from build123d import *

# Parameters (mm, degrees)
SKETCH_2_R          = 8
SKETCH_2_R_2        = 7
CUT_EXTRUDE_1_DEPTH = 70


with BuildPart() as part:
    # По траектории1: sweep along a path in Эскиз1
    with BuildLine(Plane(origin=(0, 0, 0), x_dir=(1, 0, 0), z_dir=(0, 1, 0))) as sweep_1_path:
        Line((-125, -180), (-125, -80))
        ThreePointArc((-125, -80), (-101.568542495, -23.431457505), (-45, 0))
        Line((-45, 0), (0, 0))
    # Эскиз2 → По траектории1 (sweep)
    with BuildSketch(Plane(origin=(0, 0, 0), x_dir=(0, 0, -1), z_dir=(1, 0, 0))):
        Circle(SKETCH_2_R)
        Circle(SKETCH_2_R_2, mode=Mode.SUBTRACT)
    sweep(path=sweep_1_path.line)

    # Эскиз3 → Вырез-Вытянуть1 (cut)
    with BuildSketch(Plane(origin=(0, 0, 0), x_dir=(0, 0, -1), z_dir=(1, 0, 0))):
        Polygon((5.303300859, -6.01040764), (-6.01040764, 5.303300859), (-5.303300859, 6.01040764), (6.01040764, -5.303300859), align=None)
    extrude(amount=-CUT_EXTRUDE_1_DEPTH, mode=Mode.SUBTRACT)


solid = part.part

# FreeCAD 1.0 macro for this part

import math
import FreeCAD as App
import Part
import Sketcher
from FreeCAD import Vector
Q = App.Units.Quantity


def add_polygon(sketch, points):
    """Adds a closed chain of lines whose ends are joined by coincident constraints."""
    first, n = sketch.GeometryCount, len(points)
    for a, b in zip(points, points[1:] + points[:1]):
        sketch.addGeometry(Part.LineSegment(App.Vector(*a, 0), App.Vector(*b, 0)), False)
    for i in range(n):
        sketch.addConstraint(Sketcher.Constraint("Coincident", first + i, 2, first + (i + 1) % n, 1))

doc = App.newDocument("Part")
body = doc.addObject("PartDesign::Body", "Body")

sketch1 = body.newObject("Sketcher::SketchObject", "Sketch")
sketch1.AttachmentSupport = (doc.getObject("YZ_Plane"), [""])
sketch1.MapMode = "FlatFace"
sketch1.addGeometry(Part.Circle(Vector(0, 0, 0), Vector(0, 0, 1), 8), False)
sketch1.addGeometry(Part.Circle(Vector(0, 0, 0), Vector(0, 0, 1), 7), False)
sketch1.addConstraint(Sketcher.Constraint("Coincident", 0, 3, -1, 1))
sketch1.addConstraint(Sketcher.Constraint("Coincident", 1, 3, -1, 1))
sketch1.addConstraint(Sketcher.Constraint("Diameter", 0, 16.0))
sketch1.addConstraint(Sketcher.Constraint("Diameter", 1, 14.0))

sketch2 = body.newObject("Sketcher::SketchObject", "Sketch001")
sketch2.AttachmentSupport = (doc.getObject("XZ_Plane"), [""])
sketch2.MapMode = "FlatFace"
sketch2.addGeometry(Part.LineSegment(Vector(-125, 180, 0), Vector(-125, 80, 0)), False)
sketch2.addGeometry(Part.ArcOfCircle(Part.Circle(Vector(-45, 80, 0), Vector(0, 0, 1), 80), math.radians(180), math.radians(270)), False)
sketch2.addGeometry(Part.LineSegment(Vector(-45, 0, 0), Vector(0, 0, 0)), False)
sketch2.addConstraint(Sketcher.Constraint("Tangent", 0, 2, 1, 1))
sketch2.addConstraint(Sketcher.Constraint("Tangent", 1, 2, 2, 1))
sketch2.addConstraint(Sketcher.Constraint("Vertical", 0))
sketch2.addConstraint(Sketcher.Constraint("Horizontal", 2))
sketch2.addConstraint(Sketcher.Constraint("Coincident", 2, 2, -1, 1))
sketch2.addConstraint(Sketcher.Constraint("Radius", 1, 80.0))
sketch2.addConstraint(Sketcher.Constraint("DistanceX", 2, 1, 2, 2, 45.0))
sketch2.addConstraint(Sketcher.Constraint("DistanceY", 0, 2, 0, 1, 100.0))
doc.recompute()

additivepipe = body.newObject("PartDesign::AdditivePipe", "AdditivePipe")
additivepipe.Profile = sketch1
additivepipe.Spine = (sketch2, ["Edge1", "Edge2", "Edge3"])

sketch3 = body.newObject("Sketcher::SketchObject", "Sketch002")
sketch3.AttachmentSupport = (doc.getObject("YZ_Plane"), [""])
sketch3.MapMode = "FlatFace"
add_polygon(sketch3, [(5.3, 6), (-6, -5.3), (-5.3, -6), (6, 5.3)])
sketch3.addConstraint(Sketcher.Constraint("Symmetric", 0, 2, 2, 2, -1, 1))
sketch3.addConstraint(Sketcher.Constraint("Symmetric", 1, 2, 3, 2, -1, 1))
sketch3.addConstraint(Sketcher.Constraint("Perpendicular", 0, 1))
sketch3.addConstraint(Sketcher.Constraint("Angle", 0, Q("-135 deg")))
sketch3.addConstraint(Sketcher.Constraint("Distance", 0, 16.0))
sketch3.addConstraint(Sketcher.Constraint("Distance", 1, 1.0))
pocket1 = body.newObject("PartDesign::Pocket", "Pocket")
pocket1.Profile = sketch3
pocket1.Length = 70

doc.recompute()
